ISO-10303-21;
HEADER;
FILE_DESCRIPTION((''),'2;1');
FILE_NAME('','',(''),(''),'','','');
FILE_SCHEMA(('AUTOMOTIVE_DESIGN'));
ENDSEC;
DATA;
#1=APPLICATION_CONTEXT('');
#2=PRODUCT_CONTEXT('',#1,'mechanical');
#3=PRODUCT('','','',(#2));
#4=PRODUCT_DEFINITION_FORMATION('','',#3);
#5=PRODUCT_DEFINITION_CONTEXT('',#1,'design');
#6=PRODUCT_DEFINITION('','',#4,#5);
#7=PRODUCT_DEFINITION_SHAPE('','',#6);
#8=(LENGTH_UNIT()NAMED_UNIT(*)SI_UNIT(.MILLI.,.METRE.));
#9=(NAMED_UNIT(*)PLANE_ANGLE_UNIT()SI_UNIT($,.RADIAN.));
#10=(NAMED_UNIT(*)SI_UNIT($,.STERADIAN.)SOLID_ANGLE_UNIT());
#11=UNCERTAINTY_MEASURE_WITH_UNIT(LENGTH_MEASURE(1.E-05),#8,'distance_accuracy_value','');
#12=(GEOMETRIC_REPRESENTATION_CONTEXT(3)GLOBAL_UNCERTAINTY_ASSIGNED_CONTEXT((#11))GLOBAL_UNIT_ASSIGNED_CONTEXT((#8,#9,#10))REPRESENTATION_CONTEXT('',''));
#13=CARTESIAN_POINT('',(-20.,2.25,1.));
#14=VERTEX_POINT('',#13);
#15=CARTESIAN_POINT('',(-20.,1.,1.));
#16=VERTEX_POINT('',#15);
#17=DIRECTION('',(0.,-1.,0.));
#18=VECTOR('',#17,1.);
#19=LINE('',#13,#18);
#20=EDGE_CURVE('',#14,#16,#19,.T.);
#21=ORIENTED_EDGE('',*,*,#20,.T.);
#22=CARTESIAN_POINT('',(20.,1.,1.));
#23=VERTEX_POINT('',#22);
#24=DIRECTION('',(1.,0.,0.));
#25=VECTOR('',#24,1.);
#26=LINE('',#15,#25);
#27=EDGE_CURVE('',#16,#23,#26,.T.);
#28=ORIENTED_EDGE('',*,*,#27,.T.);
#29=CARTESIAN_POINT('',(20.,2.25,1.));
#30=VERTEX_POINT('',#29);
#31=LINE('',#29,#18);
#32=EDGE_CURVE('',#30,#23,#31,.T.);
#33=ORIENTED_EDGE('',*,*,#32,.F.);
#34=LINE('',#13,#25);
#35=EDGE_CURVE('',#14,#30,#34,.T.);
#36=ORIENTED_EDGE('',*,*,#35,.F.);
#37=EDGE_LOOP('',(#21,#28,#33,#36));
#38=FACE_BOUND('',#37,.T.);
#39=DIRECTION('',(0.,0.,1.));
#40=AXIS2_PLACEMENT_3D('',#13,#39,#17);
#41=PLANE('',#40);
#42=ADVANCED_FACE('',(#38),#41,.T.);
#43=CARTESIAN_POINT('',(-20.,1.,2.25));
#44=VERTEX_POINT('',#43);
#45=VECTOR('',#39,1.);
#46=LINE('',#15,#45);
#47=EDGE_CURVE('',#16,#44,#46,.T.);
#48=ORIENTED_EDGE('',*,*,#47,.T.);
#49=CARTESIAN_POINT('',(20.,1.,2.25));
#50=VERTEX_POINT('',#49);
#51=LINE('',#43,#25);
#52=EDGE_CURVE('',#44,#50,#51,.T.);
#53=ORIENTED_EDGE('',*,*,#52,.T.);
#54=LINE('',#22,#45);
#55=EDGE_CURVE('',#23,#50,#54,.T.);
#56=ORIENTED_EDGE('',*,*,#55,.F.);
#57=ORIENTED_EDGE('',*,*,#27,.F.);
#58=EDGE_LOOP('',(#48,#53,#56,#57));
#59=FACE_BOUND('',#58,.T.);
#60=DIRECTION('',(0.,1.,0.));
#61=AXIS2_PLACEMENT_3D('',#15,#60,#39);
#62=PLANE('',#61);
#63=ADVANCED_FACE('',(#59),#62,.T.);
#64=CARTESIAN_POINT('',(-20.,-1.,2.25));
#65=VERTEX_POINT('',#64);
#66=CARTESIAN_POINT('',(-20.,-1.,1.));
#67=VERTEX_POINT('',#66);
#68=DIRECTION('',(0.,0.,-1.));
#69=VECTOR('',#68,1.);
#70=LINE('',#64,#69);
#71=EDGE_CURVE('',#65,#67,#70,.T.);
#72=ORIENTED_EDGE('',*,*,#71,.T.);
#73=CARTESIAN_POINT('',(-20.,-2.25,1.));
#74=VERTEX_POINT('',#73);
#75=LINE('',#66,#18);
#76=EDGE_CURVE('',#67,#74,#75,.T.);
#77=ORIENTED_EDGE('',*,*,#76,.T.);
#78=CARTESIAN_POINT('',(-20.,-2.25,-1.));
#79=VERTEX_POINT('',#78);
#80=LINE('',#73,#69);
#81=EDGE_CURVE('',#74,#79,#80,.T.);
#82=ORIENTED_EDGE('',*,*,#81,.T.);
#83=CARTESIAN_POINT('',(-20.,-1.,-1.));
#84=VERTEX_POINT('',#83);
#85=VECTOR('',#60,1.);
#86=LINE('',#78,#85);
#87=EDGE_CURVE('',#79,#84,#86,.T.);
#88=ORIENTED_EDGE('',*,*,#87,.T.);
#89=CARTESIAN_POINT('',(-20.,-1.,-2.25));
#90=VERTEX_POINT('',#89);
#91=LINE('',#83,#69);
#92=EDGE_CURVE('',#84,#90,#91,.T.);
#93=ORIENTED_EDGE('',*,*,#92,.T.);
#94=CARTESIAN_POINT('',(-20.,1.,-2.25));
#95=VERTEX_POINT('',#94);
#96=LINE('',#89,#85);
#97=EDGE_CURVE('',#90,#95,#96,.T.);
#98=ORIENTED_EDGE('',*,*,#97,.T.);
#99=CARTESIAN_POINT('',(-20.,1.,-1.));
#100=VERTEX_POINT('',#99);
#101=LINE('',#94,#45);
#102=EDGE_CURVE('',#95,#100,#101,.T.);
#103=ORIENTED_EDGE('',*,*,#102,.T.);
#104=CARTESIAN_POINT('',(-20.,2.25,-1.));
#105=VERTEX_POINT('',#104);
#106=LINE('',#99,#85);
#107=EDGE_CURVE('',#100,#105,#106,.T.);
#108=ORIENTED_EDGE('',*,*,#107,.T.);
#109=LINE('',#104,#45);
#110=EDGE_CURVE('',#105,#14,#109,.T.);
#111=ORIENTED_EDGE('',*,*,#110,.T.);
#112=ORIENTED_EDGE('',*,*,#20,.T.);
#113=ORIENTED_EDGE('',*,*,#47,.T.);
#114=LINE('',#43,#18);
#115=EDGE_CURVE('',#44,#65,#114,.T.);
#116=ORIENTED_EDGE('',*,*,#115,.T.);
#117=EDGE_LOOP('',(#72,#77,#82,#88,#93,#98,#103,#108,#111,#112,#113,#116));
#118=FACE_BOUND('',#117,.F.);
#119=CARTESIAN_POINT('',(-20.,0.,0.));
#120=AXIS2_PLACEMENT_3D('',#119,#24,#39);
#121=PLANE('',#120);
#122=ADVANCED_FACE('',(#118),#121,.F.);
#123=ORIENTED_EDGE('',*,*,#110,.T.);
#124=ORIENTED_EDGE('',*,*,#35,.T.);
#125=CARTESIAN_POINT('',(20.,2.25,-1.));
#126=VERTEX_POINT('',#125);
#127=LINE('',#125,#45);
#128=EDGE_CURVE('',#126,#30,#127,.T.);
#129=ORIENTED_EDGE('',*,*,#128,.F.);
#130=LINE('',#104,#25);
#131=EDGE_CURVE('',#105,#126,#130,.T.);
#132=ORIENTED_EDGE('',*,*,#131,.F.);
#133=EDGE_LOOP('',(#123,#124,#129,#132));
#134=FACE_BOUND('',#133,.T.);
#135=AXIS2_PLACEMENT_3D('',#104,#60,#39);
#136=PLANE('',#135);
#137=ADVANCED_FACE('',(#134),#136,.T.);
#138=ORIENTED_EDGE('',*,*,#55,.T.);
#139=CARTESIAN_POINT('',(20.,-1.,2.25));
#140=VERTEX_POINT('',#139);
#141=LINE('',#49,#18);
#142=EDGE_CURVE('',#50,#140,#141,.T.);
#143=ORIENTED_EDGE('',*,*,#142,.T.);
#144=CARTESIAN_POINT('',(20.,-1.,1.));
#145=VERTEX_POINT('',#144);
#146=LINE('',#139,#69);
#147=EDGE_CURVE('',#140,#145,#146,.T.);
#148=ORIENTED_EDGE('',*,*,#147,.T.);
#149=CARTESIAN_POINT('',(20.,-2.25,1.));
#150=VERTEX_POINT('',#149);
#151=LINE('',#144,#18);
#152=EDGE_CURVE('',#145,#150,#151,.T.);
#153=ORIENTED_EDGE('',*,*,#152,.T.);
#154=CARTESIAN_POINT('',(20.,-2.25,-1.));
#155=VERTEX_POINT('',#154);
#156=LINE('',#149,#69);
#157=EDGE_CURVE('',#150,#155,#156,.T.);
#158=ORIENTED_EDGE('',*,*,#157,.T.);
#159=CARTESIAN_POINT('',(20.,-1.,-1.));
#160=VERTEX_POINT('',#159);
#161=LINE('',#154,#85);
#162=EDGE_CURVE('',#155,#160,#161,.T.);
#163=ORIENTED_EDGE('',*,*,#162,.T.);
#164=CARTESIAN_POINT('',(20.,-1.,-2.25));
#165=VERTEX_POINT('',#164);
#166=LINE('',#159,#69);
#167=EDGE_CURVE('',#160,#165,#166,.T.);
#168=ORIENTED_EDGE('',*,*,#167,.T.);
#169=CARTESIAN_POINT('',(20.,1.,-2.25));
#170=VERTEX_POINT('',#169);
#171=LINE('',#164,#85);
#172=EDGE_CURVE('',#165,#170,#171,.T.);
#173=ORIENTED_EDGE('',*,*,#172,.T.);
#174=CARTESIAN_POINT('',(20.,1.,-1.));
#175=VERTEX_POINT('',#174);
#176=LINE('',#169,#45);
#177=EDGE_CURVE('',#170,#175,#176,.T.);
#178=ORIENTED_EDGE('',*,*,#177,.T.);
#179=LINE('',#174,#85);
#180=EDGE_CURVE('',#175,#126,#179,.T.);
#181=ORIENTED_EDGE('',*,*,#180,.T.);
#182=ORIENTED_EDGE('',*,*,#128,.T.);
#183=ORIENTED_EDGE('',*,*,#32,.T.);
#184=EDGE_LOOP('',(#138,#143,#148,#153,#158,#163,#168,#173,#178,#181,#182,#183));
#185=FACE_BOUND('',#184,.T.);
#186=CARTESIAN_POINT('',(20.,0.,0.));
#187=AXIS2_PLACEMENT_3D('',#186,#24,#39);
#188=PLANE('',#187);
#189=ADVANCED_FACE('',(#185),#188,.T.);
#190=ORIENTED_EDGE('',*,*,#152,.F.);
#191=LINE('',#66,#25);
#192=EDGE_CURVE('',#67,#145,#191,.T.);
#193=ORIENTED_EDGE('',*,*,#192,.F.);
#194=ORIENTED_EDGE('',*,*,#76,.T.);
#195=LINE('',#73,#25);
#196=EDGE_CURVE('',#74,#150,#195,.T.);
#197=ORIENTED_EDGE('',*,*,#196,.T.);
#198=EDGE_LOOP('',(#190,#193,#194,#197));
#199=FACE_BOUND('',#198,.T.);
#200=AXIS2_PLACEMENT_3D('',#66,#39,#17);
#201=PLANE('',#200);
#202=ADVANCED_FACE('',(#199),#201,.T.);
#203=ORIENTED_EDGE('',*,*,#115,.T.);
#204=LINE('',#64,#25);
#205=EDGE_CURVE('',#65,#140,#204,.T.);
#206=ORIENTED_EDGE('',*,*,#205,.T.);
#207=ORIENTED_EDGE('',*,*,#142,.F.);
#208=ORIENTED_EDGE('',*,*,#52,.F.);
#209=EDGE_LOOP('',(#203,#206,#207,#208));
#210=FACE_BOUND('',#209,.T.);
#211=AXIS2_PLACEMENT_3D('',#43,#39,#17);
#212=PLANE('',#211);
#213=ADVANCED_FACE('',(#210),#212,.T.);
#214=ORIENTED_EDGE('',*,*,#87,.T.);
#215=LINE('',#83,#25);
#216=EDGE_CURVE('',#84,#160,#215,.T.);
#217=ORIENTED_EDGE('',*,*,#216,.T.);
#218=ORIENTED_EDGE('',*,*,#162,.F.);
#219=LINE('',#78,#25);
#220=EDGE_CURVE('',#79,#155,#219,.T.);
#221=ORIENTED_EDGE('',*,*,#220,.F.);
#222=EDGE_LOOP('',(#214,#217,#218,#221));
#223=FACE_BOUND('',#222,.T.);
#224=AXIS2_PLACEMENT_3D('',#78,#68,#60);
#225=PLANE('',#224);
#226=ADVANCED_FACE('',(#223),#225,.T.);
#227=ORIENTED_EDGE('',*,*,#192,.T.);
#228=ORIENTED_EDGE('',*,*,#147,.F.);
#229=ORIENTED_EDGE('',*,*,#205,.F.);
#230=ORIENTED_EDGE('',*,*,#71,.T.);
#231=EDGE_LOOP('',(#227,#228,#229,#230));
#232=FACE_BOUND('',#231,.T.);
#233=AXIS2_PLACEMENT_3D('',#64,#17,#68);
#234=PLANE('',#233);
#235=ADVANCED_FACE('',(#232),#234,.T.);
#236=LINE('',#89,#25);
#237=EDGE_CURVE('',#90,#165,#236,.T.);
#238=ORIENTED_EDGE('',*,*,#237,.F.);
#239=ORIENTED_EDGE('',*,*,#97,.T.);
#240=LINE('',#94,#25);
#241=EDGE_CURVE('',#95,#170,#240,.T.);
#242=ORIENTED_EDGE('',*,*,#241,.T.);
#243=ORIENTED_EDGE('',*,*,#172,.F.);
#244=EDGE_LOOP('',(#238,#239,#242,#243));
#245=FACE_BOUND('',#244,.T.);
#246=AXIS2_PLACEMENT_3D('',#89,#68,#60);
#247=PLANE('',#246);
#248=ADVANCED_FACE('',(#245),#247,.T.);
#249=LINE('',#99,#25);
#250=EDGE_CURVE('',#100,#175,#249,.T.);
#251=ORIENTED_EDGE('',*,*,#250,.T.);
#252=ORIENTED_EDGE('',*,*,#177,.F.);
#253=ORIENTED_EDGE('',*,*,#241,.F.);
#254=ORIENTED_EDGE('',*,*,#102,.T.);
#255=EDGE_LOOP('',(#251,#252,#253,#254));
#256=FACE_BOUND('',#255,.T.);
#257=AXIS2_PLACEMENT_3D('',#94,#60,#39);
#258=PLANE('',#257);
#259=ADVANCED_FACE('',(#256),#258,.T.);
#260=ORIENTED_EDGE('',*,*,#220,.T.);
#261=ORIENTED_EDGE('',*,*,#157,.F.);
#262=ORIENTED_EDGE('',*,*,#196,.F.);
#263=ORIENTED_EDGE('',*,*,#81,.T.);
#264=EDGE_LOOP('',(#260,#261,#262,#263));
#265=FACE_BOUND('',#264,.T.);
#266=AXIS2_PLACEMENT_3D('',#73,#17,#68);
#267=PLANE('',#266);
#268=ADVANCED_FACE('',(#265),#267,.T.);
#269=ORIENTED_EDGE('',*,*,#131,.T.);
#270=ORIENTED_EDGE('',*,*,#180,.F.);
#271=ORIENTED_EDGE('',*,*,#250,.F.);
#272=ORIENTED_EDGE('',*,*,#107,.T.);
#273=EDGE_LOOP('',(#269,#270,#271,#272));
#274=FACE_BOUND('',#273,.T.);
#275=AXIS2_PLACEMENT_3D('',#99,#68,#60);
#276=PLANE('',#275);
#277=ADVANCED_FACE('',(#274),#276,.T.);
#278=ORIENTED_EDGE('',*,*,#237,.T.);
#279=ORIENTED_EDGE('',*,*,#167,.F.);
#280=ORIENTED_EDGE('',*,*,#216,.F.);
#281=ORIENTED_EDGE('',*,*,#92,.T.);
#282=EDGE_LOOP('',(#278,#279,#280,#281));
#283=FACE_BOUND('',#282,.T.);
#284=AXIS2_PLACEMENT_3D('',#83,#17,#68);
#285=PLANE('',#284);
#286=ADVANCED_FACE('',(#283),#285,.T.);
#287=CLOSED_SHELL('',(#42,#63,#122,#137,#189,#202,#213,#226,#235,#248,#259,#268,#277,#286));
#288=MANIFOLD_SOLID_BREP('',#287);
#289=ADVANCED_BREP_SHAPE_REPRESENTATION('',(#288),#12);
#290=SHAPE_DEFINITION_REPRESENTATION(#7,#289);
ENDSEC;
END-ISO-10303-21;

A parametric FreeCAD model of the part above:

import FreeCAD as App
import Part
import Sketcher

V = App.Vector
Q = App.Units.Quantity

doc = App.newDocument("Part")
body = doc.addObject("PartDesign::Body", "Body")

# Sketch on YZ plane
sketch1 = body.newObject("Sketcher::SketchObject", "Sketch")
sketch1.AttachmentSupport = (doc.getObject("YZ_Plane"), [""])
sketch1.MapMode = "FlatFace"
sketch1.AttachmentOffset = App.Placement(V(0, 0, -20), App.Rotation())
sketch1.addGeometry(Part.LineSegment(V(-1, -1, 0), V(-1, -2.2, 0)), False)
sketch1.addGeometry(Part.LineSegment(V(-1, -2.2, 0), V(1, -2.2, 0)), False)
sketch1.addGeometry(Part.LineSegment(V(1, -2.2, 0), V(1, -1, 0)), False)
sketch1.addGeometry(Part.LineSegment(V(1, -1, 0), V(2.2, -1, 0)), False)
sketch1.addGeometry(Part.LineSegment(V(2.2, -1, 0), V(2.2, 1, 0)), False)
sketch1.addGeometry(Part.LineSegment(V(2.2, 1, 0), V(1, 1, 0)), False)
sketch1.addGeometry(Part.LineSegment(V(1, 1, 0), V(1, 2.2, 0)), False)
sketch1.addGeometry(Part.LineSegment(V(1, 2.2, 0), V(-1, 2.2, 0)), False)
sketch1.addGeometry(Part.LineSegment(V(-1, 2.2, 0), V(-1, 1, 0)), False)
sketch1.addGeometry(Part.LineSegment(V(-1, 1, 0), V(-2.2, 1, 0)), False)
sketch1.addGeometry(Part.LineSegment(V(-2.2, 1, 0), V(-2.2, -1, 0)), False)
sketch1.addGeometry(Part.LineSegment(V(-2.2, -1, 0), V(-1, -1, 0)), False)
sketch1.addConstraint(Sketcher.Constraint("Coincident", 0, 2, 1, 1))
sketch1.addConstraint(Sketcher.Constraint("Coincident", 1, 2, 2, 1))
sketch1.addConstraint(Sketcher.Constraint("Coincident", 2, 2, 3, 1))
sketch1.addConstraint(Sketcher.Constraint("Coincident", 3, 2, 4, 1))
sketch1.addConstraint(Sketcher.Constraint("Coincident", 4, 2, 5, 1))
sketch1.addConstraint(Sketcher.Constraint("Coincident", 5, 2, 6, 1))
sketch1.addConstraint(Sketcher.Constraint("Coincident", 6, 2, 7, 1))
sketch1.addConstraint(Sketcher.Constraint("Coincident", 7, 2, 8, 1))
sketch1.addConstraint(Sketcher.Constraint("Coincident", 8, 2, 9, 1))
sketch1.addConstraint(Sketcher.Constraint("Coincident", 9, 2, 10, 1))
sketch1.addConstraint(Sketcher.Constraint("Coincident", 10, 2, 11, 1))
sketch1.addConstraint(Sketcher.Constraint("Coincident", 11, 2, 0, 1))
sketch1.addConstraint(Sketcher.Constraint("Vertical", 0))
sketch1.addConstraint(Sketcher.Constraint("Horizontal", 1))
sketch1.addConstraint(Sketcher.Constraint("Vertical", 2))
sketch1.addConstraint(Sketcher.Constraint("Horizontal", 3))
sketch1.addConstraint(Sketcher.Constraint("Vertical", 4))
sketch1.addConstraint(Sketcher.Constraint("Horizontal", 5))
sketch1.addConstraint(Sketcher.Constraint("Vertical", 6))
sketch1.addConstraint(Sketcher.Constraint("Horizontal", 7))
sketch1.addConstraint(Sketcher.Constraint("Vertical", 8))
sketch1.addConstraint(Sketcher.Constraint("Horizontal", 9))
sketch1.addConstraint(Sketcher.Constraint("Vertical", 10))
sketch1.addConstraint(Sketcher.Constraint("Horizontal", 11))
sketch1.addConstraint(Sketcher.Constraint("Symmetric", 0, 2, 6, 2, -1, 1))
sketch1.addConstraint(Sketcher.Constraint("Symmetric", 2, 2, 8, 2, -1, 1))
sketch1.addConstraint(Sketcher.Constraint("Symmetric", 4, 2, 10, 2, -1, 1))
sketch1.addConstraint(Sketcher.Constraint("Symmetric", 5, 2, 8, 2, -2))
sketch1.addConstraint(Sketcher.Constraint("Equal", 11, 0))
sketch1.addConstraint(Sketcher.Constraint("Equal", 7, 4))
sketch1.addConstraint(Sketcher.Constraint("DistanceX", 1, 1, 1, 2, Q("2 mm")))
sketch1.addConstraint(Sketcher.Constraint("DistanceX", 3, 1, 3, 2, Q("1.25 mm")))

# Sketch on XY plane
sketch2 = body.newObject("Sketcher::SketchObject", "Sketch001")
sketch2.AttachmentSupport = (doc.getObject("XY_Plane"), [""])
sketch2.MapMode = "FlatFace"
sketch2.addGeometry(Part.LineSegment(V(-20, 0, 0), V(20, 0, 0)), False)
sketch2.addConstraint(Sketcher.Constraint("Horizontal", 0))
sketch2.addConstraint(Sketcher.Constraint("Symmetric", 0, 1, 0, 2, -1, 1))
sketch2.addConstraint(Sketcher.Constraint("DistanceX", 0, 1, 0, 2, Q("40 mm")))
doc.recompute()

additivepipe = body.newObject("PartDesign::AdditivePipe", "AdditivePipe")
additivepipe.Profile = sketch1
additivepipe.Spine = (sketch2, ["Edge1"])

doc.recompute()
